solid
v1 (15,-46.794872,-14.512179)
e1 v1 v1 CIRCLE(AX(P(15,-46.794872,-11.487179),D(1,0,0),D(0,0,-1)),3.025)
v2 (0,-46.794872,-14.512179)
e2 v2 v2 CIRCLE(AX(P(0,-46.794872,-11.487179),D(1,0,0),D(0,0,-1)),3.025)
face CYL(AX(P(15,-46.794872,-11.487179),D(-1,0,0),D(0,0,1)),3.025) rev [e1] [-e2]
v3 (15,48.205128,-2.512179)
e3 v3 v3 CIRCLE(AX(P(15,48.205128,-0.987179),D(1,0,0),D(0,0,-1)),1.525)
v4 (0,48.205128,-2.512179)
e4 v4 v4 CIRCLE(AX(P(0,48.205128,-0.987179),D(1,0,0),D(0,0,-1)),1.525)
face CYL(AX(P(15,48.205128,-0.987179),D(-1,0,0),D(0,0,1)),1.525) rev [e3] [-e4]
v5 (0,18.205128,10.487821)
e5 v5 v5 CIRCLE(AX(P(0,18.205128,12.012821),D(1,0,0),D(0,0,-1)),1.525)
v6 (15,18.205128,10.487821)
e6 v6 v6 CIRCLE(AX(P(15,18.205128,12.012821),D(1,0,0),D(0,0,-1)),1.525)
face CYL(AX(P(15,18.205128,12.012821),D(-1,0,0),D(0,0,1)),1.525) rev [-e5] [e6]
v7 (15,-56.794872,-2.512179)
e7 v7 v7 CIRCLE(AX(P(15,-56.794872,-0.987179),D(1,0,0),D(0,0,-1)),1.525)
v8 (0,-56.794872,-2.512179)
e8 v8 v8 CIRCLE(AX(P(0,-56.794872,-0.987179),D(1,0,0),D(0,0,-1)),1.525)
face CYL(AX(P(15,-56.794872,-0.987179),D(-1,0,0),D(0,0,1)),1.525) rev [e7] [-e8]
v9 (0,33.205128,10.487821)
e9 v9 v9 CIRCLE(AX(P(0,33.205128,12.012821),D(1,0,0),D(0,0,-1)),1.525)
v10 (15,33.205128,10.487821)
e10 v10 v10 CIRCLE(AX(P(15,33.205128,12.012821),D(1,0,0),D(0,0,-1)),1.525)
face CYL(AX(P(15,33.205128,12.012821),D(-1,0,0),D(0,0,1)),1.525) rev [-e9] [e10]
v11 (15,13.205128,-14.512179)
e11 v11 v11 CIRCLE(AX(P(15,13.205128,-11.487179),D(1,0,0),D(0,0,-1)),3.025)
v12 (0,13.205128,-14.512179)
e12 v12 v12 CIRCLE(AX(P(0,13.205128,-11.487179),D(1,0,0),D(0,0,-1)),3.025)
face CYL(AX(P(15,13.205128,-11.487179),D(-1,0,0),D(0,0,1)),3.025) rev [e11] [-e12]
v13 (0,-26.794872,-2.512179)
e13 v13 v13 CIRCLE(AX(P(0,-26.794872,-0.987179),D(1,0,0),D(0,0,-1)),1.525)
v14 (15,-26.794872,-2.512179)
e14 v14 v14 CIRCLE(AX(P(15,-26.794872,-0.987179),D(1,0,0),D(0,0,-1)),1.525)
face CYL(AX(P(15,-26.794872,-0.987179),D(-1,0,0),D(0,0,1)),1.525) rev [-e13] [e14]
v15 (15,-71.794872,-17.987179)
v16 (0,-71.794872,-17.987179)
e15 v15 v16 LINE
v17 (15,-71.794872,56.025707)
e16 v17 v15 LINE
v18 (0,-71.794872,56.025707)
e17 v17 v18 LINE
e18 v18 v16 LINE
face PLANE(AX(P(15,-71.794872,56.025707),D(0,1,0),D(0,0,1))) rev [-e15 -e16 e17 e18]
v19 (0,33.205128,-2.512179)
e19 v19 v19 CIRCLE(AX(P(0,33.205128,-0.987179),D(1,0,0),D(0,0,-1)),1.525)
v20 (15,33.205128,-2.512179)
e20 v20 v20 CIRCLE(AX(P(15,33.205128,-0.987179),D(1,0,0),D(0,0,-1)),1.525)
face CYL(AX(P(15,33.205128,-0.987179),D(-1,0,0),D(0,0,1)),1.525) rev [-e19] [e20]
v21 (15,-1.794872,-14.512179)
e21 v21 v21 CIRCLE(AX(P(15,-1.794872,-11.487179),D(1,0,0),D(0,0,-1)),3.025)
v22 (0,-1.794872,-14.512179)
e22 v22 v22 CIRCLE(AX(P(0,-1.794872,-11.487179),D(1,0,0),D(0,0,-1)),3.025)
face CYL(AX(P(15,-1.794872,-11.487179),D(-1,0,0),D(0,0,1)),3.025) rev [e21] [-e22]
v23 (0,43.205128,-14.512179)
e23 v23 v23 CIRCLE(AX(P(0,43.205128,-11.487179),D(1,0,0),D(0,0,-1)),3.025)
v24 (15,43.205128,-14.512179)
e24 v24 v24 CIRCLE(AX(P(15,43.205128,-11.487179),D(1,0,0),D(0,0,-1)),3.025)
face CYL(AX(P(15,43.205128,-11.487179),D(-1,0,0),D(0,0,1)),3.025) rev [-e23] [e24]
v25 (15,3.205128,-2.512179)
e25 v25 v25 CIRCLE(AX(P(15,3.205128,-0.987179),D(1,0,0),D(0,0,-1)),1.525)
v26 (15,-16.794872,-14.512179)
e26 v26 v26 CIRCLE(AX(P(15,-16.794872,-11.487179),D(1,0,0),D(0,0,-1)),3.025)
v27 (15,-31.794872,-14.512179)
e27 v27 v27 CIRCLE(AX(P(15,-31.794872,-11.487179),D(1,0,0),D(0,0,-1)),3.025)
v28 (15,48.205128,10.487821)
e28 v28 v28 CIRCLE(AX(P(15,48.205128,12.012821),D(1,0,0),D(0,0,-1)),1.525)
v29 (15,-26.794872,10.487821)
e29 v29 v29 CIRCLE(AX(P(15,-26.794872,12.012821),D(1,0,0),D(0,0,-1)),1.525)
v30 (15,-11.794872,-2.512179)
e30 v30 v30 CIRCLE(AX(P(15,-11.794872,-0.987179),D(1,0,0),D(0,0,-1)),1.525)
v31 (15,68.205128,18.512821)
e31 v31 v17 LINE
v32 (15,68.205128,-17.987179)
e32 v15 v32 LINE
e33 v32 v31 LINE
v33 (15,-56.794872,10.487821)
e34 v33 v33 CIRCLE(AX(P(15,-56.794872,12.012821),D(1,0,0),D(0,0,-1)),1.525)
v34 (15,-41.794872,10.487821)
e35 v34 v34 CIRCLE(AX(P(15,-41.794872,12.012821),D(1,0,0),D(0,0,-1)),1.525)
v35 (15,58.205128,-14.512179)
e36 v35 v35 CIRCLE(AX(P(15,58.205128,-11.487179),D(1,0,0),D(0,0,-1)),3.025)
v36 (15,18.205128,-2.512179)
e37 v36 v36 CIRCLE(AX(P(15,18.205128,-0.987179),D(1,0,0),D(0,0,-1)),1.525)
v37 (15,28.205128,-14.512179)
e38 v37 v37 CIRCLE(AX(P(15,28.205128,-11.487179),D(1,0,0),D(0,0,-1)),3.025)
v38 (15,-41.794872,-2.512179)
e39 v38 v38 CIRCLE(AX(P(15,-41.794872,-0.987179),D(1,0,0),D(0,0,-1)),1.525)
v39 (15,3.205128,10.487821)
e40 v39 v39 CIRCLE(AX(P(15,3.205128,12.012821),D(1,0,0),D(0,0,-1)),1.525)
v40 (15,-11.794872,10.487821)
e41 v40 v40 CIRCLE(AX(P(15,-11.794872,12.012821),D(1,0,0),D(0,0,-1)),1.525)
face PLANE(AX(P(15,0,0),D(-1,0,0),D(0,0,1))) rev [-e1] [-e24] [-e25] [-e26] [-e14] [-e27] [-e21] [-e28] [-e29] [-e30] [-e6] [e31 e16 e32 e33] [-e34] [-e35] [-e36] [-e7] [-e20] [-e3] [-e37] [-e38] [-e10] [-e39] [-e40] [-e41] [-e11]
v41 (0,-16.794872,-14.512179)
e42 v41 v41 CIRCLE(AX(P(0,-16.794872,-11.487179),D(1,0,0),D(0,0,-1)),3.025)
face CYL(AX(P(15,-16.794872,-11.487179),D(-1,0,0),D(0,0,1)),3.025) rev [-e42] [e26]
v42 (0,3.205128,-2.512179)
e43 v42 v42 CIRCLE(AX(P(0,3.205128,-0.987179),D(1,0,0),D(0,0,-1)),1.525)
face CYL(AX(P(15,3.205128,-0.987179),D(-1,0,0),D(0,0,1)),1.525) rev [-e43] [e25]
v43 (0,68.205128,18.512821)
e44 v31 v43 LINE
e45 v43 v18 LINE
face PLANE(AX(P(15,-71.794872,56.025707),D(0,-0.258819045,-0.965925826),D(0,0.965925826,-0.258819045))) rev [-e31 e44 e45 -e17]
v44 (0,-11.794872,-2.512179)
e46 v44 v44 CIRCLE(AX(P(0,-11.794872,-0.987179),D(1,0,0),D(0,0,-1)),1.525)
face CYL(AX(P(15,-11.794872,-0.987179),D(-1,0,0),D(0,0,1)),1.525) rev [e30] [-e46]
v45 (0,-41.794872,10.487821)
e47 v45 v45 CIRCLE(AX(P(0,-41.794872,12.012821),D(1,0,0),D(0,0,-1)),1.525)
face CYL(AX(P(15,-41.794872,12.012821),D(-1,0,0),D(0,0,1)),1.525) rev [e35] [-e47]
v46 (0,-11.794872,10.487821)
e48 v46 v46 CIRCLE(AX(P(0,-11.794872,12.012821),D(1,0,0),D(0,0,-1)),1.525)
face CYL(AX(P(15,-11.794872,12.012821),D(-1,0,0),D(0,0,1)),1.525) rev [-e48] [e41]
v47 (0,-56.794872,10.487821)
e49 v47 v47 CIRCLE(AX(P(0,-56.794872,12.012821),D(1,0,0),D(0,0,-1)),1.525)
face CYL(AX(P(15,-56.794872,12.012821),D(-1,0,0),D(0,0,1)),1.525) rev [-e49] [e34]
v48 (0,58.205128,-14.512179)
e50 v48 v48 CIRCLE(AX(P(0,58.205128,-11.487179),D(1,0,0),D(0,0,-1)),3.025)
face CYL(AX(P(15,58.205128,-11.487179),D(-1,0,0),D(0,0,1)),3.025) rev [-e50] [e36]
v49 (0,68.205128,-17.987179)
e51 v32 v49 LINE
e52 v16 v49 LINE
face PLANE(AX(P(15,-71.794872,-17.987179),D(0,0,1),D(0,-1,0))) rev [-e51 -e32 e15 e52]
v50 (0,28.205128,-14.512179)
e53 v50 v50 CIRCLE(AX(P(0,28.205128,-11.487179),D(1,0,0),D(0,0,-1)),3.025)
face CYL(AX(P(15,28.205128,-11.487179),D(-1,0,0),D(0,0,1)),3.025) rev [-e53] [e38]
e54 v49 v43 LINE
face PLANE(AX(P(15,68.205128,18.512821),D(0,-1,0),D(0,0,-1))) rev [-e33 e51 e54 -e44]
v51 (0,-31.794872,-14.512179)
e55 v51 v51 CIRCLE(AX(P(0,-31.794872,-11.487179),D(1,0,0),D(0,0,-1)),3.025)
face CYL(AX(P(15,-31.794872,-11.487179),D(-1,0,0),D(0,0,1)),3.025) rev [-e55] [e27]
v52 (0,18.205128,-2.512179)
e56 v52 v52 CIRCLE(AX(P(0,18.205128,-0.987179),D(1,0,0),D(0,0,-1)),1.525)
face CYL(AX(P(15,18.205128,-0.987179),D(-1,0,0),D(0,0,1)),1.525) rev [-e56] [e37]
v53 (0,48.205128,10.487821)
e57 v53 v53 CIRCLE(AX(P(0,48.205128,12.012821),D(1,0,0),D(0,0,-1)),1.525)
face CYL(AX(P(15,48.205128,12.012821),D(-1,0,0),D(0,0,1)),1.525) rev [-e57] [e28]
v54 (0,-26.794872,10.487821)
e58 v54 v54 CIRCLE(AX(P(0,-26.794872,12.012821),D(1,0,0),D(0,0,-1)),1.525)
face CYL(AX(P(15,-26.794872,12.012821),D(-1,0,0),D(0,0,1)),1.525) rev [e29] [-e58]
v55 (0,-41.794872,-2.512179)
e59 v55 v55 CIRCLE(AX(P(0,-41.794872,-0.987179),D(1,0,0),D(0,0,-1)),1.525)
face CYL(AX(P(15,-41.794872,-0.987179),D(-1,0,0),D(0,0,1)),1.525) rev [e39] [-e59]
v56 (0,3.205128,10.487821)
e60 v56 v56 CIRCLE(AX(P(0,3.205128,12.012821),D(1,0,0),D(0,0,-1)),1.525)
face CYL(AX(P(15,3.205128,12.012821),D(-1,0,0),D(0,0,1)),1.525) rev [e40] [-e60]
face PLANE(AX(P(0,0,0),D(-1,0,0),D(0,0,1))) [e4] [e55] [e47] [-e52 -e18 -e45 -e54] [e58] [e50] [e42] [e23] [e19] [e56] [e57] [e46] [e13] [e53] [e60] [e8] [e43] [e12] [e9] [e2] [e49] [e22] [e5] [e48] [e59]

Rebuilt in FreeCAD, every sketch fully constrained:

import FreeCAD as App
import Part
import Sketcher
from FreeCAD import Vector
Q = App.Units.Quantity

doc = App.newDocument("Part")
body = doc.addObject("PartDesign::Body", "Body")

# Sketch on YZ plane
sketch1 = doc.addObject("Sketcher::SketchObject", "Sketch")
body.addObject(sketch1)
sketch1.AttachmentSupport = (doc.YZ_Plane, [""])
sketch1.MapMode = "FlatFace"
sketch1.addGeometry(Part.LineSegment(Vector(-71.8, 56, 0), Vector(-71.8, -18, 0)), False)
sketch1.addGeometry(Part.LineSegment(Vector(-71.8, -18, 0), Vector(68.2, -18, 0)), False)
sketch1.addGeometry(Part.LineSegment(Vector(68.2, -18, 0), Vector(68.2, 18.5, 0)), False)
sketch1.addGeometry(Part.LineSegment(Vector(68.2, 18.5, 0), Vector(-71.8, 56, 0)), False)
sketch1.addGeometry(Part.Circle(Vector(-56.8, 12, 0), Vector(0, 0, 1), 1.5), False)
sketch1.addGeometry(Part.Circle(Vector(-41.8, 12, 0), Vector(0, 0, 1), 1.5), False)
sketch1.addGeometry(Part.Circle(Vector(-26.8, 12, 0), Vector(0, 0, 1), 1.5), False)
sketch1.addGeometry(Part.Circle(Vector(-11.8, 12, 0), Vector(0, 0, 1), 1.5), False)
sketch1.addGeometry(Part.Circle(Vector(-56.8, -1, 0), Vector(0, 0, 1), 1.5), False)
sketch1.addGeometry(Part.Circle(Vector(-41.8, -1, 0), Vector(0, 0, 1), 1.5), False)
sketch1.addGeometry(Part.Circle(Vector(-46.8, -11.5, 0), Vector(0, 0, 1), 3), False)
sketch1.addGeometry(Part.Circle(Vector(-31.8, -11.5, 0), Vector(0, 0, 1), 3), False)
sketch1.addGeometry(Part.Circle(Vector(-26.8, -1, 0), Vector(0, 0, 1), 1.5), False)
sketch1.addGeometry(Part.Circle(Vector(-11.8, -1, 0), Vector(0, 0, 1), 1.5), False)
sketch1.addGeometry(Part.Circle(Vector(-16.8, -11.5, 0), Vector(0, 0, 1), 3), False)
sketch1.addGeometry(Part.Circle(Vector(-1.8, -11.5, 0), Vector(0, 0, 1), 3), False)
sketch1.addGeometry(Part.Circle(Vector(3.2, 12, 0), Vector(0, 0, 1), 1.5), False)
sketch1.addGeometry(Part.Circle(Vector(18.2, 12, 0), Vector(0, 0, 1), 1.5), False)
sketch1.addGeometry(Part.Circle(Vector(33.2, 12, 0), Vector(0, 0, 1), 1.5), False)
sketch1.addGeometry(Part.Circle(Vector(48.2, 12, 0), Vector(0, 0, 1), 1.5), False)
sketch1.addGeometry(Part.Circle(Vector(3.2, -1, 0), Vector(0, 0, 1), 1.5), False)
sketch1.addGeometry(Part.Circle(Vector(18.2, -1, 0), Vector(0, 0, 1), 1.5), False)
sketch1.addGeometry(Part.Circle(Vector(13.2, -11.5, 0), Vector(0, 0, 1), 3), False)
sketch1.addGeometry(Part.Circle(Vector(28.2, -11.5, 0), Vector(0, 0, 1), 3), False)
sketch1.addGeometry(Part.Circle(Vector(33.2, -1, 0), Vector(0, 0, 1), 1.5), False)
sketch1.addGeometry(Part.Circle(Vector(48.2, -1, 0), Vector(0, 0, 1), 1.5), False)
sketch1.addGeometry(Part.Circle(Vector(43.2, -11.5, 0), Vector(0, 0, 1), 3), False)
sketch1.addGeometry(Part.Circle(Vector(58.2, -11.5, 0), Vector(0, 0, 1), 3), False)
sketch1.addConstraint(Sketcher.Constraint("Coincident", 0, 2, 1, 1))
sketch1.addConstraint(Sketcher.Constraint("Coincident", 1, 2, 2, 1))
sketch1.addConstraint(Sketcher.Constraint("Coincident", 2, 2, 3, 1))
sketch1.addConstraint(Sketcher.Constraint("Coincident", 3, 2, 0, 1))
sketch1.addConstraint(Sketcher.Constraint("Vertical", 0))
sketch1.addConstraint(Sketcher.Constraint("Horizontal", 1))
sketch1.addConstraint(Sketcher.Constraint("Vertical", 2))
sketch1.addConstraint(Sketcher.Constraint("Equal", 4, 5))
sketch1.addConstraint(Sketcher.Constraint("Equal", 5, 6))
sketch1.addConstraint(Sketcher.Constraint("Equal", 6, 7))
sketch1.addConstraint(Sketcher.Constraint("Equal", 7, 8))
sketch1.addConstraint(Sketcher.Constraint("Equal", 8, 9))
sketch1.addConstraint(Sketcher.Constraint("Equal", 10, 11))
sketch1.addConstraint(Sketcher.Constraint("Equal", 9, 12))
sketch1.addConstraint(Sketcher.Constraint("Equal", 12, 13))
sketch1.addConstraint(Sketcher.Constraint("Equal", 11, 14))
sketch1.addConstraint(Sketcher.Constraint("Equal", 14, 15))
sketch1.addConstraint(Sketcher.Constraint("Equal", 13, 16))
sketch1.addConstraint(Sketcher.Constraint("Equal", 16, 17))
sketch1.addConstraint(Sketcher.Constraint("Equal", 17, 18))
sketch1.addConstraint(Sketcher.Constraint("Equal", 18, 19))
sketch1.addConstraint(Sketcher.Constraint("Equal", 19, 20))
sketch1.addConstraint(Sketcher.Constraint("Equal", 20, 21))
sketch1.addConstraint(Sketcher.Constraint("Equal", 15, 22))
sketch1.addConstraint(Sketcher.Constraint("Equal", 22, 23))
sketch1.addConstraint(Sketcher.Constraint("Equal", 21, 24))
sketch1.addConstraint(Sketcher.Constraint("Equal", 24, 25))
sketch1.addConstraint(Sketcher.Constraint("Equal", 23, 26))
sketch1.addConstraint(Sketcher.Constraint("Equal", 26, 27))
sketch1.addConstraint(Sketcher.Constraint("Horizontal", 4, 3, 5, 3))
sketch1.addConstraint(Sketcher.Constraint("Horizontal", 5, 3, 6, 3))
sketch1.addConstraint(Sketcher.Constraint("Horizontal", 6, 3, 7, 3))
sketch1.addConstraint(Sketcher.Constraint("Horizontal", 8, 3, 9, 3))
sketch1.addConstraint(Sketcher.Constraint("Horizontal", 10, 3, 11, 3))
sketch1.addConstraint(Sketcher.Constraint("Horizontal", 9, 3, 12, 3))
sketch1.addConstraint(Sketcher.Constraint("Horizontal", 12, 3, 13, 3))
sketch1.addConstraint(Sketcher.Constraint("Horizontal", 11, 3, 14, 3))
sketch1.addConstraint(Sketcher.Constraint("Horizontal", 14, 3, 15, 3))
sketch1.addConstraint(Sketcher.Constraint("Horizontal", 7, 3, 16, 3))
sketch1.addConstraint(Sketcher.Constraint("Horizontal", 16, 3, 17, 3))
sketch1.addConstraint(Sketcher.Constraint("Horizontal", 17, 3, 18, 3))
sketch1.addConstraint(Sketcher.Constraint("Horizontal", 18, 3, 19, 3))
sketch1.addConstraint(Sketcher.Constraint("Horizontal", 13, 3, 20, 3))
sketch1.addConstraint(Sketcher.Constraint("Horizontal", 20, 3, 21, 3))
sketch1.addConstraint(Sketcher.Constraint("Horizontal", 15, 3, 22, 3))
sketch1.addConstraint(Sketcher.Constraint("Horizontal", 22, 3, 23, 3))
sketch1.addConstraint(Sketcher.Constraint("Horizontal", 21, 3, 24, 3))
sketch1.addConstraint(Sketcher.Constraint("Horizontal", 24, 3, 25, 3))
sketch1.addConstraint(Sketcher.Constraint("Horizontal", 23, 3, 26, 3))
sketch1.addConstraint(Sketcher.Constraint("Horizontal", 26, 3, 27, 3))
sketch1.addConstraint(Sketcher.Constraint("Vertical", 4, 3, 8, 3))
sketch1.addConstraint(Sketcher.Constraint("Vertical", 5, 3, 9, 3))
sketch1.addConstraint(Sketcher.Constraint("Vertical", 6, 3, 12, 3))
sketch1.addConstraint(Sketcher.Constraint("Vertical", 7, 3, 13, 3))
sketch1.addConstraint(Sketcher.Constraint("Vertical", 16, 3, 20, 3))
sketch1.addConstraint(Sketcher.Constraint("Vertical", 17, 3, 21, 3))
sketch1.addConstraint(Sketcher.Constraint("Vertical", 18, 3, 24, 3))
sketch1.addConstraint(Sketcher.Constraint("Vertical", 19, 3, 25, 3))
sketch1.addConstraint(Sketcher.Constraint("Diameter", 4, 3.05))
sketch1.addConstraint(Sketcher.Constraint("Diameter", 10, 6.05))
sketch1.addConstraint(Sketcher.Constraint("DistanceX", 1, 1, 1, 2, 140.0))
sketch1.addConstraint(Sketcher.Constraint("Angle", 3, Q("165 deg")))
sketch1.addConstraint(Sketcher.Constraint("DistanceY", 2, 1, 2, 2, 36.5))
sketch1.addConstraint(Sketcher.Constraint("DistanceX", 4, 3, 5, 3, 15.0))
sketch1.addConstraint(Sketcher.Constraint("DistanceX", 5, 3, 6, 3, 15.0))
sketch1.addConstraint(Sketcher.Constraint("DistanceX", 6, 3, 7, 3, 15.0))
sketch1.addConstraint(Sketcher.Constraint("DistanceY", 8, 3, 4, 3, 13.0))
sketch1.addConstraint(Sketcher.Constraint("DistanceX", 10, 3, 9, 3, 5.0))
sketch1.addConstraint(Sketcher.Constraint("DistanceX", 9, 3, 11, 3, 10.0))
sketch1.addConstraint(Sketcher.Constraint("DistanceX", 14, 3, 13, 3, 5.0))
sketch1.addConstraint(Sketcher.Constraint("DistanceX", 13, 3, 15, 3, 10.0))
sketch1.addConstraint(Sketcher.Constraint("DistanceX", 7, 3, 16, 3, 15.0))
sketch1.addConstraint(Sketcher.Constraint("DistanceX", 16, 3, 17, 3, 15.0))
sketch1.addConstraint(Sketcher.Constraint("DistanceX", 17, 3, 18, 3, 15.0))
sketch1.addConstraint(Sketcher.Constraint("DistanceX", 18, 3, 19, 3, 15.0))
sketch1.addConstraint(Sketcher.Constraint("DistanceX", 22, 3, 21, 3, 5.0))
sketch1.addConstraint(Sketcher.Constraint("DistanceX", 21, 3, 23, 3, 10.0))
sketch1.addConstraint(Sketcher.Constraint("DistanceX", 26, 3, 25, 3, 5.0))
sketch1.addConstraint(Sketcher.Constraint("DistanceX", 25, 3, 27, 3, 10.0))
sketch1.addConstraint(Sketcher.Constraint("DistanceX", 0, 2, 8, 3, 15.0))
sketch1.addConstraint(Sketcher.Constraint("DistanceY", 0, 2, 8, 3, 17.0))
sketch1.addConstraint(Sketcher.Constraint("DistanceY", 27, 3, 2, 2, 30.0))
sketch1.addConstraint(Sketcher.Constraint("DistanceX", 4, 3, -1, 1, 56.794872))
sketch1.addConstraint(Sketcher.Constraint("DistanceY", -1, 1, 4, 3, 12.012821))
pad1 = doc.addObject("PartDesign::Pad", "Pad")
body.addObject(pad1)
pad1.Profile = sketch1
pad1.Length = 15

doc.recompute()
